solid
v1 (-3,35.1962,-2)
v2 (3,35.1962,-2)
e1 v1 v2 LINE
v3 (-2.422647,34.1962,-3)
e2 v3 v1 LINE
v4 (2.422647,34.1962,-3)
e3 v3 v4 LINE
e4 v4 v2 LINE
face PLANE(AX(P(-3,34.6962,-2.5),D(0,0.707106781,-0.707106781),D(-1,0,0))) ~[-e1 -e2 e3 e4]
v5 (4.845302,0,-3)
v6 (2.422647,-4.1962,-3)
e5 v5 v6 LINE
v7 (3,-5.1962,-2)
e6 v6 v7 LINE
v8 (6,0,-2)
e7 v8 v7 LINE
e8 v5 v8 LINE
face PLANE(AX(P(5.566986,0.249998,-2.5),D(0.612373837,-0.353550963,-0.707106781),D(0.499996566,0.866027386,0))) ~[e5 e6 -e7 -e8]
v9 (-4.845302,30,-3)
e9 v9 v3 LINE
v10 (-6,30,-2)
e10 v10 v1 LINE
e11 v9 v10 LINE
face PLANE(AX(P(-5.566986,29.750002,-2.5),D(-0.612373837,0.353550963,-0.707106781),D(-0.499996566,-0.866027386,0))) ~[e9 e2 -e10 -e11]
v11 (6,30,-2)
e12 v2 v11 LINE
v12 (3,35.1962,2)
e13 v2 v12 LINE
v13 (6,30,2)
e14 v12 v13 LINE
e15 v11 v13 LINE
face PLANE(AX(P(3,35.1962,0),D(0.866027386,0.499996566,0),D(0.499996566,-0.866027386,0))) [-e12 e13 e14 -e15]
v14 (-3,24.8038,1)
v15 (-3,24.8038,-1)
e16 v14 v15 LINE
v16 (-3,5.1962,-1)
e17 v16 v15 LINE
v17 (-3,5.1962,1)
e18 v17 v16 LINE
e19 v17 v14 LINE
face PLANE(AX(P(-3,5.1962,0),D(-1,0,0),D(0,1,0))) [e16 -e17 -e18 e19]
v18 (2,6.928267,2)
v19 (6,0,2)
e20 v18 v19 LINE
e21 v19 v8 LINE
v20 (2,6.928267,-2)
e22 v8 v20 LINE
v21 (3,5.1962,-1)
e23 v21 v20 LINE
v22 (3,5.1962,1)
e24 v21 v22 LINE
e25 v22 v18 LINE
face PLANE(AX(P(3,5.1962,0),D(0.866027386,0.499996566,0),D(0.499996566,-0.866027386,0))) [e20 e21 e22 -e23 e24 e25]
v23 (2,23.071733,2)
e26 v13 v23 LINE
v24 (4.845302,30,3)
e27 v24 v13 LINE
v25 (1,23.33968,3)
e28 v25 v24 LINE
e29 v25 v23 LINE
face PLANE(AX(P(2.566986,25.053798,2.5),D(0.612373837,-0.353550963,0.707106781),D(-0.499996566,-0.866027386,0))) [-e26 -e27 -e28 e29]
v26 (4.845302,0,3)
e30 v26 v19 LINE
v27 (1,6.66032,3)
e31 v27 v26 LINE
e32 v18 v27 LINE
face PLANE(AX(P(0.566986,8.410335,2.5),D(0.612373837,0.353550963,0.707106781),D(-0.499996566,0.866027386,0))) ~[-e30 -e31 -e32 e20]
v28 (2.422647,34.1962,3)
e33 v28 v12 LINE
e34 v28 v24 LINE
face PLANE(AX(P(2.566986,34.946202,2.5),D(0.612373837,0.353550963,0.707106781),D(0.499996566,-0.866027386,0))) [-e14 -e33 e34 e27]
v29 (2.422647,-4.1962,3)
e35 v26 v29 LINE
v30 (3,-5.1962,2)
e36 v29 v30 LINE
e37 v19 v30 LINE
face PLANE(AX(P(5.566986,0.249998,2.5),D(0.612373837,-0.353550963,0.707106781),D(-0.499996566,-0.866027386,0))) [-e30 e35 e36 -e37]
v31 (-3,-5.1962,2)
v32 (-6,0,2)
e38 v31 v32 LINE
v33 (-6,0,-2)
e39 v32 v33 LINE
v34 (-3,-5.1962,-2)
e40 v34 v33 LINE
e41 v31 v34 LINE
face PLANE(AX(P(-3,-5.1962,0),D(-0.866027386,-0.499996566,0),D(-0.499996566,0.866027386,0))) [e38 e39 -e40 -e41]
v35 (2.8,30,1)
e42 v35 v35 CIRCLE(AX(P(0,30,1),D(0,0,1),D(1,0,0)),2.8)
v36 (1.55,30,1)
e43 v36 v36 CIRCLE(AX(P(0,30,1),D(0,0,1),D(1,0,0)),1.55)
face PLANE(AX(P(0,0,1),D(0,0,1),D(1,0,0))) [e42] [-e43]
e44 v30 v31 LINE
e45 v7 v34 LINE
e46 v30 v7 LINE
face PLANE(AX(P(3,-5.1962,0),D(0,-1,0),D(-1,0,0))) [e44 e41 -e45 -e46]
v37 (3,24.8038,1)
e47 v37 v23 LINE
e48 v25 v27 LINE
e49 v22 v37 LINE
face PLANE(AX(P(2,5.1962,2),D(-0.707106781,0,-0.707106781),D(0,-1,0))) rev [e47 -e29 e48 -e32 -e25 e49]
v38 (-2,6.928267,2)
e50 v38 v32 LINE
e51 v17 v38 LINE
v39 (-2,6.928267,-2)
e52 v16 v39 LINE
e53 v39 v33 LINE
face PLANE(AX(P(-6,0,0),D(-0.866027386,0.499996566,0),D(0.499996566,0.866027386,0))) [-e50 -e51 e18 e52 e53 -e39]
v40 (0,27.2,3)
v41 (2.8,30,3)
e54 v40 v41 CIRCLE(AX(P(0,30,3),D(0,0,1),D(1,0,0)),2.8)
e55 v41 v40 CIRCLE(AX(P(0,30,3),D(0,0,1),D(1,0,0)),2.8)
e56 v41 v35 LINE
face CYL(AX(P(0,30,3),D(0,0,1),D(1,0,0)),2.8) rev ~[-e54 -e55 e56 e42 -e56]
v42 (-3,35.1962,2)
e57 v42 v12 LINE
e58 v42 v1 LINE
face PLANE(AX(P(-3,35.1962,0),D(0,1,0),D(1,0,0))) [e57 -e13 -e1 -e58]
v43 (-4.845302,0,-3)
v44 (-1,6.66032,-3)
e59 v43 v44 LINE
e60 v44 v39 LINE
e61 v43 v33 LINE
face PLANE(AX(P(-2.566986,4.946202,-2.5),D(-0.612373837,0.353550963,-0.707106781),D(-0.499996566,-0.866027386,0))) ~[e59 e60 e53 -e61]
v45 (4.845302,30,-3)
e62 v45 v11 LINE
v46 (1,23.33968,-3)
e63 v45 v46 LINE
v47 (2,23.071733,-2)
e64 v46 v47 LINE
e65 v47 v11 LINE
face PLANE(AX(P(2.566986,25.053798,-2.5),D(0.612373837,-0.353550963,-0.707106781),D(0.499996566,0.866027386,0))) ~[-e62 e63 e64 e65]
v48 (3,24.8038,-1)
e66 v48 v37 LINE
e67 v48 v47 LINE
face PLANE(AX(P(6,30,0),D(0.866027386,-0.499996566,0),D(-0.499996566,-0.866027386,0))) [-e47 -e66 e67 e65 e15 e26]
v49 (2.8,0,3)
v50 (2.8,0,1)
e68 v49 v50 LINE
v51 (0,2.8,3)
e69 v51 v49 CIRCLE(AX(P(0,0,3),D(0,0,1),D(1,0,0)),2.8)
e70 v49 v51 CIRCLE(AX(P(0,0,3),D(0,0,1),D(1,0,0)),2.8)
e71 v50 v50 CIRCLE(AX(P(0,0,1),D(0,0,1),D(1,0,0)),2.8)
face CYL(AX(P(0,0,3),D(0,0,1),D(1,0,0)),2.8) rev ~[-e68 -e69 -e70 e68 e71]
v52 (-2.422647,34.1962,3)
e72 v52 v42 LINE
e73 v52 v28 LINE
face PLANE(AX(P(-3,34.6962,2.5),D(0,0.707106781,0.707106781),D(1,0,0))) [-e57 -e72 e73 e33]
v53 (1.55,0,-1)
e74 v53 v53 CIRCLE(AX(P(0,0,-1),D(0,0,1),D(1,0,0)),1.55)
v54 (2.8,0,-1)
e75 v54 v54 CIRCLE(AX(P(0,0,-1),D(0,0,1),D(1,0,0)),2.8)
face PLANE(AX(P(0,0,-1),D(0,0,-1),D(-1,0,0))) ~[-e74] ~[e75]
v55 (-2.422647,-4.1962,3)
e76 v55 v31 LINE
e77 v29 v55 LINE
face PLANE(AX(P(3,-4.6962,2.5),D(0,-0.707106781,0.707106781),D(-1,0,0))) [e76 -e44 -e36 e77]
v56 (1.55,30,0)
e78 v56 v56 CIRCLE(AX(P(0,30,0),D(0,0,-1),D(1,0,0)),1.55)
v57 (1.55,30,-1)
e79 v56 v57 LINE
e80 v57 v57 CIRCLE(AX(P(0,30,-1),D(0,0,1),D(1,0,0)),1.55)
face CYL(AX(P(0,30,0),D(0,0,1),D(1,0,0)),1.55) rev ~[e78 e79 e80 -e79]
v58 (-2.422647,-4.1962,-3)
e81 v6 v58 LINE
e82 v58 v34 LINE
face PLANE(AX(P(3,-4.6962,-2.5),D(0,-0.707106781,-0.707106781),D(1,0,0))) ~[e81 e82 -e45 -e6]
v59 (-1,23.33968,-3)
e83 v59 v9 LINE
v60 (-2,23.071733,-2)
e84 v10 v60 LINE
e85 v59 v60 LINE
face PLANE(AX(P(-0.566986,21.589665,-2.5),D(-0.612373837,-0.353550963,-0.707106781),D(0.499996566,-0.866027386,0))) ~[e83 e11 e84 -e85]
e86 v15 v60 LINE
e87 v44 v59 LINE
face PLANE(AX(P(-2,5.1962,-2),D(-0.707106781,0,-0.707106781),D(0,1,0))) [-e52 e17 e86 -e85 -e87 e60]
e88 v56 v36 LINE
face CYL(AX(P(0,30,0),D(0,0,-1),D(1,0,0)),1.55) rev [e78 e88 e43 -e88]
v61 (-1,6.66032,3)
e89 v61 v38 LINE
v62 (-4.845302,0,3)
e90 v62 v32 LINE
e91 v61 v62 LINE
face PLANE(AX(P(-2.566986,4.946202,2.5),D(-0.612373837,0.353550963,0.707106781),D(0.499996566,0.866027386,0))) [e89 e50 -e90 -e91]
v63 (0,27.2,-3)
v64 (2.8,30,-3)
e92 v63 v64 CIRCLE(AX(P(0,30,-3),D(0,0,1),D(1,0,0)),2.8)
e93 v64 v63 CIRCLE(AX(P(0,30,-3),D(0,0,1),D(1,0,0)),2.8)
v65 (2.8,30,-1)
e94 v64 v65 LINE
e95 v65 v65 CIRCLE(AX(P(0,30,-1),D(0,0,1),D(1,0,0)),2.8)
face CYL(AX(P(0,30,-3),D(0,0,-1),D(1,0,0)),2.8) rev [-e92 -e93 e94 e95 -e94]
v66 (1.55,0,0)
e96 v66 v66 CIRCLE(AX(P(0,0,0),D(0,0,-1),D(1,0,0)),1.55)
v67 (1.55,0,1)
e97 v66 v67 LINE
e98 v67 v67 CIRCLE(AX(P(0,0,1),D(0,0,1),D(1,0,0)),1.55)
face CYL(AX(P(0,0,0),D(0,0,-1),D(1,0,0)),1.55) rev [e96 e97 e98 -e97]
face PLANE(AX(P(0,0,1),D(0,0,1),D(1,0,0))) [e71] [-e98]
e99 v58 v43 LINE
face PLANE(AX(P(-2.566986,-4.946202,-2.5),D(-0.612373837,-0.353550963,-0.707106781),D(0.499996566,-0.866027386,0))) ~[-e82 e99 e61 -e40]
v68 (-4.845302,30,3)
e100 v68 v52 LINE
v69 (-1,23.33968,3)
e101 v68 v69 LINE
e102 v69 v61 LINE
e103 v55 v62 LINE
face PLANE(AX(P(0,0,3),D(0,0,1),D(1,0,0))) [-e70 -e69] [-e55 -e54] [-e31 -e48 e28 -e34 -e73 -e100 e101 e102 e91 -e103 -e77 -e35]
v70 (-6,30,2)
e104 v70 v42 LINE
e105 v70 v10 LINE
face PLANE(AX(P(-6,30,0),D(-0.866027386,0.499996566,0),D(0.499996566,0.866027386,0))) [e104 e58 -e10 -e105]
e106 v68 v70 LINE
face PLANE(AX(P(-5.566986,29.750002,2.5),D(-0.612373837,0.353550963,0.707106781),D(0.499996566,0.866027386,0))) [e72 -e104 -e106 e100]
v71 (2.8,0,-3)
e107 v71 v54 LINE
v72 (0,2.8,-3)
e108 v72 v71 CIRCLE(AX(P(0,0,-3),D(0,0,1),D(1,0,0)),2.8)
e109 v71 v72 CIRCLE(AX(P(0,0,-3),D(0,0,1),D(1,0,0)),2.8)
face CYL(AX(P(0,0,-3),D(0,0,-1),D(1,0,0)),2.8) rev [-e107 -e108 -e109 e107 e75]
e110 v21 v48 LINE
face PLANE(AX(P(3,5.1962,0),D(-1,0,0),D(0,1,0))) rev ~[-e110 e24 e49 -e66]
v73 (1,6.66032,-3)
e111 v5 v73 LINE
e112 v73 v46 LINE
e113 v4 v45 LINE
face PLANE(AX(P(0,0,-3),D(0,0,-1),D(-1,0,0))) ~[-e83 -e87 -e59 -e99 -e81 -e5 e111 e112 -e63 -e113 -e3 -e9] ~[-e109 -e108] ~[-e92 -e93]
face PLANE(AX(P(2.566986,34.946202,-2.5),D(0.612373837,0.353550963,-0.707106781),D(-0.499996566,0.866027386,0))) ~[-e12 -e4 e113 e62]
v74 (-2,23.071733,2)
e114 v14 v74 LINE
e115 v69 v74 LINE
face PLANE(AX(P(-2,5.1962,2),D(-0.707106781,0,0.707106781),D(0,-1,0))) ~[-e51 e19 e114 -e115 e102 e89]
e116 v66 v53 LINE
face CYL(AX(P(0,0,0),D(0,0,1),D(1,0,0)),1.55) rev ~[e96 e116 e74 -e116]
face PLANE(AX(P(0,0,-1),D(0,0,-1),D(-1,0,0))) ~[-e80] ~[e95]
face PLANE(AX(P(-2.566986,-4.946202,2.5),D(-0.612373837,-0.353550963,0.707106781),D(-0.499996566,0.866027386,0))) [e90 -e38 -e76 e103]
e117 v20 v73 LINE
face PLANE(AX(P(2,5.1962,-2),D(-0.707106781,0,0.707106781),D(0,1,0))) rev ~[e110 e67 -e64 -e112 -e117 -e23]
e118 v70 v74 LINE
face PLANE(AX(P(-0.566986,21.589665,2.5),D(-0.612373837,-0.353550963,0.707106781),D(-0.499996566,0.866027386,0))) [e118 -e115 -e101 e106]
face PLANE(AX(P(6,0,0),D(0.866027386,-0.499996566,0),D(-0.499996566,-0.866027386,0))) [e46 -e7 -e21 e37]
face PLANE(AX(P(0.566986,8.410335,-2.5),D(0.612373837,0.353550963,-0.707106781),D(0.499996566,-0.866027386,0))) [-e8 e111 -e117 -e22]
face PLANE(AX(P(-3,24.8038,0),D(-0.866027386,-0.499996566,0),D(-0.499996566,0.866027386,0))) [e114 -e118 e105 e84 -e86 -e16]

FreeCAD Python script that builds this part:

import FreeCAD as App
import Part
import Sketcher
Q = App.Units.Quantity


def edges_at(feature, points):
    """Names of the edges that pass closest to the given points."""
    edges = feature.Shape.Edges
    near = lambda p: min(range(len(edges)), key=lambda i: edges[i].distToShape(Part.Vertex(*p))[0])
    return sorted({f"Edge{near(p) + 1}" for p in points})

doc = App.newDocument("Part")
body = doc.addObject("PartDesign::Body", "Body")

sketch1 = doc.addObject("Sketcher::SketchObject", "Sketch")
body.addObject(sketch1)
sketch1.AttachmentSupport = (doc.XY_Plane, [""])
sketch1.MapMode = "FlatFace"
sketch1.addGeometry([
    Part.LineSegment(App.Vector(6, 0, 0), App.Vector(3, 5.2, 0)),
    Part.LineSegment(App.Vector(3, 5.2, 0), App.Vector(3, 24.8, 0)),
    Part.LineSegment(App.Vector(3, 24.8, 0), App.Vector(6, 30, 0)),
    Part.LineSegment(App.Vector(6, 30, 0), App.Vector(3, 35.2, 0)),
    Part.LineSegment(App.Vector(3, 35.2, 0), App.Vector(-3, 35.2, 0)),
    Part.LineSegment(App.Vector(-3, 35.2, 0), App.Vector(-6, 30, 0)),
    Part.LineSegment(App.Vector(-6, 30, 0), App.Vector(-3, 24.8, 0)),
    Part.LineSegment(App.Vector(-3, 24.8, 0), App.Vector(-3, 5.2, 0)),
    Part.LineSegment(App.Vector(-3, 5.2, 0), App.Vector(-6, 0, 0)),
    Part.LineSegment(App.Vector(-6, 0, 0), App.Vector(-3, -5.2, 0)),
    Part.LineSegment(App.Vector(-3, -5.2, 0), App.Vector(3, -5.2, 0)),
    Part.LineSegment(App.Vector(3, -5.2, 0), App.Vector(6, 0, 0)),
    Part.Circle(App.Vector(0, 0, 0), App.Vector(0, 0, 1), 1.6),
    Part.Circle(App.Vector(0, 30, 0), App.Vector(0, 0, 1), 1.6),
], False)
sketch1.addConstraint([
    Sketcher.Constraint("Coincident", 0, 2, 1, 1),
    Sketcher.Constraint("Coincident", 1, 2, 2, 1),
    Sketcher.Constraint("Coincident", 2, 2, 3, 1),
    Sketcher.Constraint("Coincident", 3, 2, 4, 1),
    Sketcher.Constraint("Coincident", 4, 2, 5, 1),
    Sketcher.Constraint("Coincident", 5, 2, 6, 1),
    Sketcher.Constraint("Coincident", 6, 2, 7, 1),
    Sketcher.Constraint("Coincident", 7, 2, 8, 1),
    Sketcher.Constraint("Coincident", 8, 2, 9, 1),
    Sketcher.Constraint("Coincident", 9, 2, 10, 1),
    Sketcher.Constraint("Coincident", 10, 2, 11, 1),
    Sketcher.Constraint("Coincident", 11, 2, 0, 1),
    Sketcher.Constraint("Vertical", 1),
    Sketcher.Constraint("Horizontal", 4),
    Sketcher.Constraint("Vertical", 7),
    Sketcher.Constraint("Horizontal", 10),
    Sketcher.Constraint("Coincident", 12, 3, -1, 1),
    Sketcher.Constraint("Equal", 12, 13),
    Sketcher.Constraint("Symmetric", 0, 2, 9, 2, -1, 1),
    Sketcher.Constraint("Symmetric", 7, 2, 10, 2, -1, 1),
    Sketcher.Constraint("Symmetric", 8, 2, 11, 2, -1, 1),
    Sketcher.Constraint("Symmetric", 2, 2, 5, 2, -2),
    Sketcher.Constraint("Symmetric", 1, 2, 6, 2, -2),
    Sketcher.Constraint("PointOnObject", 13, 3, -2),
    Sketcher.Constraint("PointOnObject", 8, 2, -1),
    Sketcher.Constraint("Parallel", 0, 3),
    Sketcher.Constraint("Parallel", 2, 5),
    Sketcher.Constraint("Parallel", 3, 6),
    Sketcher.Constraint("Horizontal", 13, 3, 2, 2),
    Sketcher.Constraint("Vertical", 1, 2, 3, 2),
    Sketcher.Constraint("Vertical", 5, 2, 8, 2),
    Sketcher.Constraint("Diameter", 12, Q("3.1 mm")),
    Sketcher.Constraint("DistanceX", 4, 2, 4, 1, Q("6 mm")),
    Sketcher.Constraint("Distance", 0, Q("6 mm")),
    Sketcher.Constraint("DistanceY", -1, 1, 13, 3, Q("30 mm")),
    Sketcher.Constraint("DistanceX", -1, 1, 2, 2, Q("6 mm")),
])
pad1 = doc.addObject("PartDesign::Pad", "Pad")
body.addObject(pad1)
pad1.Profile = sketch1
pad1.Length = 3

sketch2 = doc.addObject("Sketcher::SketchObject", "Sketch001")
body.addObject(sketch2)
sketch2.AttachmentSupport = (doc.XY_Plane, [""])
sketch2.MapMode = "FlatFace"
sketch2.AttachmentOffset = App.Placement(App.Vector(0, 0, 3), App.Rotation())
sketch2.addGeometry([
    Part.Circle(App.Vector(0, 0, 0), App.Vector(0, 0, 1), 2.8),
    Part.Circle(App.Vector(0, 0, 0), App.Vector(0, 0, 1), 1.6),
    Part.Circle(App.Vector(0, 30, 0), App.Vector(0, 0, 1), 2.8),
    Part.Circle(App.Vector(0, 30, 0), App.Vector(0, 0, 1), 1.6),
], False)
sketch2.addConstraint([
    Sketcher.Constraint("Coincident", 0, 3, -1, 1),
    Sketcher.Constraint("Coincident", 1, 3, -1, 1),
    Sketcher.Constraint("Coincident", 3, 3, 2, 3),
    Sketcher.Constraint("Equal", 0, 2),
    Sketcher.Constraint("Equal", 1, 3),
    Sketcher.Constraint("PointOnObject", 2, 3, -2),
    Sketcher.Constraint("Diameter", 0, Q("5.6 mm")),
    Sketcher.Constraint("Diameter", 1, Q("3.1 mm")),
    Sketcher.Constraint("DistanceY", -1, 1, 2, 3, Q("30 mm")),
])
pocket1 = doc.addObject("PartDesign::Pocket", "Pocket")
body.addObject(pocket1)
pocket1.Profile = sketch2
pocket1.Length = 2
doc.recompute()

chamfer = doc.addObject("PartDesign::Chamfer", "Chamfer")
body.addObject(chamfer)
chamfer.Base = (pocket1, edges_at(pocket1, [(-3, 15, 3), (3, 15, 3)]))
chamfer.Size = 2
doc.recompute()

chamfer2 = doc.addObject("PartDesign::Chamfer", "Chamfer001")
body.addObject(chamfer2)
chamfer2.Base = (chamfer, edges_at(chamfer, [
    (-4.5, 2.598, 3),
    (-4.5, -2.598, 3),
    (0, -5.196, 3),
    (4.5, -2.598, 3),
    (4.5, 2.598, 3),
    (4.5, 27.402, 3),
    (-4.5, 27.402, 3),
    (4.5, 32.598, 3),
    (0, 35.196, 3),
    (-4.5, 32.598, 3),
]))
chamfer2.Size = 1
doc.recompute()

mirrored = doc.addObject("PartDesign::Mirrored", "Mirrored")
body.addObject(mirrored)
mirrored.TransformMode = "Transform body"
mirrored.MirrorPlane = (doc.XY_Plane, [""])
body.Tip = mirrored

doc.recompute()
